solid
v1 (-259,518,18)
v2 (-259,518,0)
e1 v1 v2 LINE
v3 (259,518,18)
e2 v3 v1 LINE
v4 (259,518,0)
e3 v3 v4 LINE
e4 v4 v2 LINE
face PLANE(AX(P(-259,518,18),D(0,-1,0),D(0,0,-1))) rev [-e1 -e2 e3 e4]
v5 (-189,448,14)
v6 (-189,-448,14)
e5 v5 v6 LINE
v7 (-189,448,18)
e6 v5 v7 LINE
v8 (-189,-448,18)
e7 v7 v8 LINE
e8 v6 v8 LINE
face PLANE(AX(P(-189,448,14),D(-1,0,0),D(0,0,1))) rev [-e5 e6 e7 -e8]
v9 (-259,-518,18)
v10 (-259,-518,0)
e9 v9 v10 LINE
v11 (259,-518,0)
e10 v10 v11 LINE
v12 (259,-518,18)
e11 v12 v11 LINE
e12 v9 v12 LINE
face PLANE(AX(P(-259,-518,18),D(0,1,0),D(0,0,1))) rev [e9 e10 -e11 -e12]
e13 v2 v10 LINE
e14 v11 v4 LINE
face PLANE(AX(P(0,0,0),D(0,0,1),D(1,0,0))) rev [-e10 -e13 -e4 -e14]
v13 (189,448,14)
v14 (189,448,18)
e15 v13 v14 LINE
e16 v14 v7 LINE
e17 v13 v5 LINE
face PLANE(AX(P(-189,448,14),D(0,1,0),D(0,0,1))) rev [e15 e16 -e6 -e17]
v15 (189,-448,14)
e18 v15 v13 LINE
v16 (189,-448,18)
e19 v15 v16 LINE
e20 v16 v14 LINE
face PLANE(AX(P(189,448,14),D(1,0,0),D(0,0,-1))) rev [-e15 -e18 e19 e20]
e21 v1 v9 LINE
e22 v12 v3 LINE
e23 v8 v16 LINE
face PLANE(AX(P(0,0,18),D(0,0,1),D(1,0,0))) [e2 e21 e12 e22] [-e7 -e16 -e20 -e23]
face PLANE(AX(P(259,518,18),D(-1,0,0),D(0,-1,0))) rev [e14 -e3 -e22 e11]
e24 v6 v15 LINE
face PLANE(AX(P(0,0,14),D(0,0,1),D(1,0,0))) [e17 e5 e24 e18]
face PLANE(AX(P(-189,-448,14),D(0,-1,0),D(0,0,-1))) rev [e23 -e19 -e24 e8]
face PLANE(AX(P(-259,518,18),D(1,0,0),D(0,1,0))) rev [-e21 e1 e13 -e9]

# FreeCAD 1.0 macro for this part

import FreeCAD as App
import Part
import Sketcher
Q = App.Units.Quantity


def add_polygon(sketch, points):
    """Adds a closed chain of lines whose ends are joined by coincident constraints."""
    first, n = sketch.GeometryCount, len(points)
    for a, b in zip(points, points[1:] + points[:1]):
        sketch.addGeometry(Part.LineSegment(App.Vector(*a, 0), App.Vector(*b, 0)), False)
    for i in range(n):
        sketch.addConstraint(Sketcher.Constraint("Coincident", first + i, 2, first + (i + 1) % n, 1))

doc = App.newDocument("Part")
body = doc.addObject("PartDesign::Body", "Body")

sketch1 = body.newObject("Sketcher::SketchObject", "Sketch")
sketch1.AttachmentSupport = (doc.getObject("XY_Plane"), [""])
sketch1.MapMode = "FlatFace"
add_polygon(sketch1, [(-259, 518), (-259, -518), (259, -518), (259, 518)])
sketch1.addConstraint([
    Sketcher.Constraint("Vertical", 0),
    Sketcher.Constraint("Horizontal", 1),
    Sketcher.Constraint("Vertical", 2),
    Sketcher.Constraint("Horizontal", 3),
    Sketcher.Constraint("Symmetric", 0, 2, 2, 2, -1, 1),
    Sketcher.Constraint("DistanceX", 1, 1, 1, 2, Q("518 mm")),
    Sketcher.Constraint("DistanceY", 0, 2, 0, 1, Q("1036 mm")),
])
pad1 = body.newObject("PartDesign::Pad", "Pad")
pad1.Profile = sketch1
pad1.Length = 18

sketch2 = body.newObject("Sketcher::SketchObject", "Sketch001")
sketch2.AttachmentSupport = (doc.getObject("XY_Plane"), [""])
sketch2.MapMode = "FlatFace"
sketch2.AttachmentOffset = App.Placement(App.Vector(0, 0, 18), App.Rotation())
add_polygon(sketch2, [(-189, 448), (-189, -448), (189, -448), (189, 448)])
sketch2.addConstraint([
    Sketcher.Constraint("Vertical", 0),
    Sketcher.Constraint("Horizontal", 1),
    Sketcher.Constraint("Vertical", 2),
    Sketcher.Constraint("Horizontal", 3),
    Sketcher.Constraint("Symmetric", 0, 2, 2, 2, -1, 1),
    Sketcher.Constraint("DistanceX", 1, 1, 1, 2, Q("378 mm")),
    Sketcher.Constraint("DistanceY", 0, 2, 0, 1, Q("896 mm")),
])
pocket1 = body.newObject("PartDesign::Pocket", "Pocket")
pocket1.Profile = sketch2
pocket1.Length = 4

doc.recompute()
